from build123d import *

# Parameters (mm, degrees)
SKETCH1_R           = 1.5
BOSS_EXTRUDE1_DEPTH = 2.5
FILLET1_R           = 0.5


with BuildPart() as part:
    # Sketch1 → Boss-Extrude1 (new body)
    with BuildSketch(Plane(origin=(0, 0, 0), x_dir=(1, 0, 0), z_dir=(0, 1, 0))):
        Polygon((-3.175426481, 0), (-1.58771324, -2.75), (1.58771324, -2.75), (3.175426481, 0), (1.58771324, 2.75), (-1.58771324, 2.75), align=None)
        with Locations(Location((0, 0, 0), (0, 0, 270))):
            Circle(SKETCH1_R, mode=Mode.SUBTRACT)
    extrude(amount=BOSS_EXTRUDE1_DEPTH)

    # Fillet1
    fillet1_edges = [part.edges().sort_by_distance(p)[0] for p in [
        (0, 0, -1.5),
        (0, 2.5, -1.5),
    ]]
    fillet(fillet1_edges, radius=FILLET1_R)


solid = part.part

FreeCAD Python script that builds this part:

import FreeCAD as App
import Part
import Sketcher
from FreeCAD import Vector
Q = App.Units.Quantity


def edges_at(feature, points):
    """Names of the edges that pass closest to the given points."""
    edges = feature.Shape.Edges
    near = lambda p: min(range(len(edges)), key=lambda i: edges[i].distToShape(Part.Vertex(*p))[0])
    return sorted({f"Edge{near(p) + 1}" for p in points})


def add_polygon(sketch, points):
    """Adds a closed chain of lines whose ends are joined by coincident constraints."""
    first, n = sketch.GeometryCount, len(points)
    for a, b in zip(points, points[1:] + points[:1]):
        sketch.addGeometry(Part.LineSegment(App.Vector(*a, 0), App.Vector(*b, 0)), False)
    for i in range(n):
        sketch.addConstraint(Sketcher.Constraint("Coincident", first + i, 2, first + (i + 1) % n, 1))

doc = App.newDocument("Part")
body = doc.addObject("PartDesign::Body", "Body")

sketch1 = body.newObject("Sketcher::SketchObject", "Sketch")
sketch1.AttachmentSupport = (doc.getObject("XZ_Plane"), [""])
sketch1.MapMode = "FlatFace"
add_polygon(sketch1, [(-3.2, 0), (-1.6, 2.8), (1.6, 2.8), (3.2, 0), (1.6, -2.8), (-1.6, -2.8)])
sketch1.addGeometry(Part.Circle(Vector(0, 0, 0), Vector(0, 0, 1), 1.5), False)
sketch1.addConstraint(Sketcher.Constraint("Horizontal", 1))
sketch1.addConstraint(Sketcher.Constraint("Horizontal", 4))
sketch1.addConstraint(Sketcher.Constraint("Coincident", 6, 3, -1, 1))
sketch1.addConstraint(Sketcher.Constraint("Symmetric", 0, 2, 3, 2, -1, 1))
sketch1.addConstraint(Sketcher.Constraint("Symmetric", 2, 2, 5, 2, -1, 1))
sketch1.addConstraint(Sketcher.Constraint("PointOnObject", 2, 2, -1))
sketch1.addConstraint(Sketcher.Constraint("Parallel", 2, 5))
sketch1.addConstraint(Sketcher.Constraint("Vertical", 1, 2, 3, 2))
sketch1.addConstraint(Sketcher.Constraint("Diameter", 6, 3.0))
sketch1.addConstraint(Sketcher.Constraint("Angle", 0, Q("60 deg")))
sketch1.addConstraint(Sketcher.Constraint("DistanceY", 3, 2, 1, 2, 5.5))
sketch1.addConstraint(Sketcher.Constraint("DistanceX", 1, 1, 1, 2, 3.175426))
pad1 = body.newObject("PartDesign::Pad", "Pad")
pad1.Profile = sketch1
pad1.Length = 2.5
pad1.Reversed = True
doc.recompute()

fillet = body.newObject("PartDesign::Fillet", "Fillet")
fillet.Base = (pad1, edges_at(pad1, [(0, 0, -1.5), (0, 2.5, -1.5)]))
fillet.Radius = 0.5

doc.recompute()
